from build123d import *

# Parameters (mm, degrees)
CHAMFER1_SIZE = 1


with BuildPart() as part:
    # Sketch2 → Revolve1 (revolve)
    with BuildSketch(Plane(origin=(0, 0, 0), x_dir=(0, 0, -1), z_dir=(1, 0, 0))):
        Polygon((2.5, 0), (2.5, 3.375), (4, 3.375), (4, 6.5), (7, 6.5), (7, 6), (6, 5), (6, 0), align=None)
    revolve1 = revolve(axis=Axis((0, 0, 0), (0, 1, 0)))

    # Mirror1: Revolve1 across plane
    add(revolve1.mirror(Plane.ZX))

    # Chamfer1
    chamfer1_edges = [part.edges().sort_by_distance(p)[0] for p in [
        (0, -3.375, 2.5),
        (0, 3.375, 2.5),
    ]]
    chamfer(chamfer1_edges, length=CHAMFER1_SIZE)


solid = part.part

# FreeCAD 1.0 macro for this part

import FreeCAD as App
import Part
import Sketcher

V = App.Vector
Q = App.Units.Quantity


def edges_at(feature, points):
    """Names of the edges that pass closest to the given points."""
    edges = feature.Shape.Edges
    near = lambda p: min(range(len(edges)), key=lambda i: edges[i].distToShape(Part.Vertex(*p))[0])
    return sorted({f"Edge{near(p) + 1}" for p in points})

doc = App.newDocument("Part")
body = doc.addObject("PartDesign::Body", "Body")

# Sketch on YZ plane
sketch1 = doc.addObject("Sketcher::SketchObject", "Sketch")
body.addObject(sketch1)
sketch1.AttachmentSupport = (doc.YZ_Plane, [""])
sketch1.MapMode = "FlatFace"
sketch1.addGeometry([
    Part.LineSegment(V(3.375, -2.5, 0), V(0, -2.5, 0)),  # 0
    Part.LineSegment(V(0, -2.5, 0), V(0, -6, 0)),  # 1
    Part.LineSegment(V(0, -6, 0), V(5, -6, 0)),  # 2
    Part.LineSegment(V(5, -6, 0), V(6, -7, 0)),  # 3
    Part.LineSegment(V(6, -7, 0), V(6.5, -7, 0)),  # 4
    Part.LineSegment(V(6.5, -7, 0), V(6.5, -4, 0)),  # 5
    Part.LineSegment(V(6.5, -4, 0), V(3.375, -4, 0)),  # 6
    Part.LineSegment(V(3.375, -4, 0), V(3.375, -2.5, 0)),  # 7
], False)
sketch1.addConstraint([
    Sketcher.Constraint("Coincident", 0, 2, 1, 1),
    Sketcher.Constraint("Coincident", 1, 2, 2, 1),
    Sketcher.Constraint("Coincident", 2, 2, 3, 1),
    Sketcher.Constraint("Coincident", 3, 2, 4, 1),
    Sketcher.Constraint("Coincident", 4, 2, 5, 1),
    Sketcher.Constraint("Coincident", 5, 2, 6, 1),
    Sketcher.Constraint("Coincident", 6, 2, 7, 1),
    Sketcher.Constraint("Coincident", 7, 2, 0, 1),
    Sketcher.Constraint("Horizontal", 0),
    Sketcher.Constraint("Vertical", 1),
    Sketcher.Constraint("Horizontal", 2),
    Sketcher.Constraint("Horizontal", 4),
    Sketcher.Constraint("Vertical", 5),
    Sketcher.Constraint("Horizontal", 6),
    Sketcher.Constraint("Vertical", 7),
    Sketcher.Constraint("PointOnObject", 0, 2, -2),
    Sketcher.Constraint("DistanceX", 2, 1, 2, 2, 5.0),
    Sketcher.Constraint("DistanceY", 5, 1, 5, 2, 3.0),
    Sketcher.Constraint("Angle", 3, Q("-45 deg")),
    Sketcher.Constraint("DistanceX", 4, 1, 4, 2, 0.5),
    Sketcher.Constraint("DistanceY", 1, 2, 1, 1, 3.5),
    Sketcher.Constraint("DistanceY", 7, 1, 7, 2, 1.5),
    Sketcher.Constraint("DistanceY", 1, 2, -1, 1, 6.0),
    Sketcher.Constraint("DistanceX", 0, 2, 0, 1, 3.375),
])
revolution = doc.addObject("PartDesign::Revolution", "Revolution")
body.addObject(revolution)
revolution.Profile = sketch1
revolution.ReferenceAxis = (sketch1, ["H_Axis"])
revolution.Angle = 360
doc.recompute()

mirrored = doc.addObject("PartDesign::Mirrored", "Mirrored")
body.addObject(mirrored)
mirrored.Originals = [revolution]
mirrored.MirrorPlane = (doc.XZ_Plane, [""])
body.Tip = mirrored
doc.recompute()

chamfer = doc.addObject("PartDesign::Chamfer", "Chamfer")
body.addObject(chamfer)
chamfer.Base = (mirrored, edges_at(mirrored, [(0, -3.375, 2.5), (0, 3.375, 2.5)]))
chamfer.Size = 1

doc.recompute()
